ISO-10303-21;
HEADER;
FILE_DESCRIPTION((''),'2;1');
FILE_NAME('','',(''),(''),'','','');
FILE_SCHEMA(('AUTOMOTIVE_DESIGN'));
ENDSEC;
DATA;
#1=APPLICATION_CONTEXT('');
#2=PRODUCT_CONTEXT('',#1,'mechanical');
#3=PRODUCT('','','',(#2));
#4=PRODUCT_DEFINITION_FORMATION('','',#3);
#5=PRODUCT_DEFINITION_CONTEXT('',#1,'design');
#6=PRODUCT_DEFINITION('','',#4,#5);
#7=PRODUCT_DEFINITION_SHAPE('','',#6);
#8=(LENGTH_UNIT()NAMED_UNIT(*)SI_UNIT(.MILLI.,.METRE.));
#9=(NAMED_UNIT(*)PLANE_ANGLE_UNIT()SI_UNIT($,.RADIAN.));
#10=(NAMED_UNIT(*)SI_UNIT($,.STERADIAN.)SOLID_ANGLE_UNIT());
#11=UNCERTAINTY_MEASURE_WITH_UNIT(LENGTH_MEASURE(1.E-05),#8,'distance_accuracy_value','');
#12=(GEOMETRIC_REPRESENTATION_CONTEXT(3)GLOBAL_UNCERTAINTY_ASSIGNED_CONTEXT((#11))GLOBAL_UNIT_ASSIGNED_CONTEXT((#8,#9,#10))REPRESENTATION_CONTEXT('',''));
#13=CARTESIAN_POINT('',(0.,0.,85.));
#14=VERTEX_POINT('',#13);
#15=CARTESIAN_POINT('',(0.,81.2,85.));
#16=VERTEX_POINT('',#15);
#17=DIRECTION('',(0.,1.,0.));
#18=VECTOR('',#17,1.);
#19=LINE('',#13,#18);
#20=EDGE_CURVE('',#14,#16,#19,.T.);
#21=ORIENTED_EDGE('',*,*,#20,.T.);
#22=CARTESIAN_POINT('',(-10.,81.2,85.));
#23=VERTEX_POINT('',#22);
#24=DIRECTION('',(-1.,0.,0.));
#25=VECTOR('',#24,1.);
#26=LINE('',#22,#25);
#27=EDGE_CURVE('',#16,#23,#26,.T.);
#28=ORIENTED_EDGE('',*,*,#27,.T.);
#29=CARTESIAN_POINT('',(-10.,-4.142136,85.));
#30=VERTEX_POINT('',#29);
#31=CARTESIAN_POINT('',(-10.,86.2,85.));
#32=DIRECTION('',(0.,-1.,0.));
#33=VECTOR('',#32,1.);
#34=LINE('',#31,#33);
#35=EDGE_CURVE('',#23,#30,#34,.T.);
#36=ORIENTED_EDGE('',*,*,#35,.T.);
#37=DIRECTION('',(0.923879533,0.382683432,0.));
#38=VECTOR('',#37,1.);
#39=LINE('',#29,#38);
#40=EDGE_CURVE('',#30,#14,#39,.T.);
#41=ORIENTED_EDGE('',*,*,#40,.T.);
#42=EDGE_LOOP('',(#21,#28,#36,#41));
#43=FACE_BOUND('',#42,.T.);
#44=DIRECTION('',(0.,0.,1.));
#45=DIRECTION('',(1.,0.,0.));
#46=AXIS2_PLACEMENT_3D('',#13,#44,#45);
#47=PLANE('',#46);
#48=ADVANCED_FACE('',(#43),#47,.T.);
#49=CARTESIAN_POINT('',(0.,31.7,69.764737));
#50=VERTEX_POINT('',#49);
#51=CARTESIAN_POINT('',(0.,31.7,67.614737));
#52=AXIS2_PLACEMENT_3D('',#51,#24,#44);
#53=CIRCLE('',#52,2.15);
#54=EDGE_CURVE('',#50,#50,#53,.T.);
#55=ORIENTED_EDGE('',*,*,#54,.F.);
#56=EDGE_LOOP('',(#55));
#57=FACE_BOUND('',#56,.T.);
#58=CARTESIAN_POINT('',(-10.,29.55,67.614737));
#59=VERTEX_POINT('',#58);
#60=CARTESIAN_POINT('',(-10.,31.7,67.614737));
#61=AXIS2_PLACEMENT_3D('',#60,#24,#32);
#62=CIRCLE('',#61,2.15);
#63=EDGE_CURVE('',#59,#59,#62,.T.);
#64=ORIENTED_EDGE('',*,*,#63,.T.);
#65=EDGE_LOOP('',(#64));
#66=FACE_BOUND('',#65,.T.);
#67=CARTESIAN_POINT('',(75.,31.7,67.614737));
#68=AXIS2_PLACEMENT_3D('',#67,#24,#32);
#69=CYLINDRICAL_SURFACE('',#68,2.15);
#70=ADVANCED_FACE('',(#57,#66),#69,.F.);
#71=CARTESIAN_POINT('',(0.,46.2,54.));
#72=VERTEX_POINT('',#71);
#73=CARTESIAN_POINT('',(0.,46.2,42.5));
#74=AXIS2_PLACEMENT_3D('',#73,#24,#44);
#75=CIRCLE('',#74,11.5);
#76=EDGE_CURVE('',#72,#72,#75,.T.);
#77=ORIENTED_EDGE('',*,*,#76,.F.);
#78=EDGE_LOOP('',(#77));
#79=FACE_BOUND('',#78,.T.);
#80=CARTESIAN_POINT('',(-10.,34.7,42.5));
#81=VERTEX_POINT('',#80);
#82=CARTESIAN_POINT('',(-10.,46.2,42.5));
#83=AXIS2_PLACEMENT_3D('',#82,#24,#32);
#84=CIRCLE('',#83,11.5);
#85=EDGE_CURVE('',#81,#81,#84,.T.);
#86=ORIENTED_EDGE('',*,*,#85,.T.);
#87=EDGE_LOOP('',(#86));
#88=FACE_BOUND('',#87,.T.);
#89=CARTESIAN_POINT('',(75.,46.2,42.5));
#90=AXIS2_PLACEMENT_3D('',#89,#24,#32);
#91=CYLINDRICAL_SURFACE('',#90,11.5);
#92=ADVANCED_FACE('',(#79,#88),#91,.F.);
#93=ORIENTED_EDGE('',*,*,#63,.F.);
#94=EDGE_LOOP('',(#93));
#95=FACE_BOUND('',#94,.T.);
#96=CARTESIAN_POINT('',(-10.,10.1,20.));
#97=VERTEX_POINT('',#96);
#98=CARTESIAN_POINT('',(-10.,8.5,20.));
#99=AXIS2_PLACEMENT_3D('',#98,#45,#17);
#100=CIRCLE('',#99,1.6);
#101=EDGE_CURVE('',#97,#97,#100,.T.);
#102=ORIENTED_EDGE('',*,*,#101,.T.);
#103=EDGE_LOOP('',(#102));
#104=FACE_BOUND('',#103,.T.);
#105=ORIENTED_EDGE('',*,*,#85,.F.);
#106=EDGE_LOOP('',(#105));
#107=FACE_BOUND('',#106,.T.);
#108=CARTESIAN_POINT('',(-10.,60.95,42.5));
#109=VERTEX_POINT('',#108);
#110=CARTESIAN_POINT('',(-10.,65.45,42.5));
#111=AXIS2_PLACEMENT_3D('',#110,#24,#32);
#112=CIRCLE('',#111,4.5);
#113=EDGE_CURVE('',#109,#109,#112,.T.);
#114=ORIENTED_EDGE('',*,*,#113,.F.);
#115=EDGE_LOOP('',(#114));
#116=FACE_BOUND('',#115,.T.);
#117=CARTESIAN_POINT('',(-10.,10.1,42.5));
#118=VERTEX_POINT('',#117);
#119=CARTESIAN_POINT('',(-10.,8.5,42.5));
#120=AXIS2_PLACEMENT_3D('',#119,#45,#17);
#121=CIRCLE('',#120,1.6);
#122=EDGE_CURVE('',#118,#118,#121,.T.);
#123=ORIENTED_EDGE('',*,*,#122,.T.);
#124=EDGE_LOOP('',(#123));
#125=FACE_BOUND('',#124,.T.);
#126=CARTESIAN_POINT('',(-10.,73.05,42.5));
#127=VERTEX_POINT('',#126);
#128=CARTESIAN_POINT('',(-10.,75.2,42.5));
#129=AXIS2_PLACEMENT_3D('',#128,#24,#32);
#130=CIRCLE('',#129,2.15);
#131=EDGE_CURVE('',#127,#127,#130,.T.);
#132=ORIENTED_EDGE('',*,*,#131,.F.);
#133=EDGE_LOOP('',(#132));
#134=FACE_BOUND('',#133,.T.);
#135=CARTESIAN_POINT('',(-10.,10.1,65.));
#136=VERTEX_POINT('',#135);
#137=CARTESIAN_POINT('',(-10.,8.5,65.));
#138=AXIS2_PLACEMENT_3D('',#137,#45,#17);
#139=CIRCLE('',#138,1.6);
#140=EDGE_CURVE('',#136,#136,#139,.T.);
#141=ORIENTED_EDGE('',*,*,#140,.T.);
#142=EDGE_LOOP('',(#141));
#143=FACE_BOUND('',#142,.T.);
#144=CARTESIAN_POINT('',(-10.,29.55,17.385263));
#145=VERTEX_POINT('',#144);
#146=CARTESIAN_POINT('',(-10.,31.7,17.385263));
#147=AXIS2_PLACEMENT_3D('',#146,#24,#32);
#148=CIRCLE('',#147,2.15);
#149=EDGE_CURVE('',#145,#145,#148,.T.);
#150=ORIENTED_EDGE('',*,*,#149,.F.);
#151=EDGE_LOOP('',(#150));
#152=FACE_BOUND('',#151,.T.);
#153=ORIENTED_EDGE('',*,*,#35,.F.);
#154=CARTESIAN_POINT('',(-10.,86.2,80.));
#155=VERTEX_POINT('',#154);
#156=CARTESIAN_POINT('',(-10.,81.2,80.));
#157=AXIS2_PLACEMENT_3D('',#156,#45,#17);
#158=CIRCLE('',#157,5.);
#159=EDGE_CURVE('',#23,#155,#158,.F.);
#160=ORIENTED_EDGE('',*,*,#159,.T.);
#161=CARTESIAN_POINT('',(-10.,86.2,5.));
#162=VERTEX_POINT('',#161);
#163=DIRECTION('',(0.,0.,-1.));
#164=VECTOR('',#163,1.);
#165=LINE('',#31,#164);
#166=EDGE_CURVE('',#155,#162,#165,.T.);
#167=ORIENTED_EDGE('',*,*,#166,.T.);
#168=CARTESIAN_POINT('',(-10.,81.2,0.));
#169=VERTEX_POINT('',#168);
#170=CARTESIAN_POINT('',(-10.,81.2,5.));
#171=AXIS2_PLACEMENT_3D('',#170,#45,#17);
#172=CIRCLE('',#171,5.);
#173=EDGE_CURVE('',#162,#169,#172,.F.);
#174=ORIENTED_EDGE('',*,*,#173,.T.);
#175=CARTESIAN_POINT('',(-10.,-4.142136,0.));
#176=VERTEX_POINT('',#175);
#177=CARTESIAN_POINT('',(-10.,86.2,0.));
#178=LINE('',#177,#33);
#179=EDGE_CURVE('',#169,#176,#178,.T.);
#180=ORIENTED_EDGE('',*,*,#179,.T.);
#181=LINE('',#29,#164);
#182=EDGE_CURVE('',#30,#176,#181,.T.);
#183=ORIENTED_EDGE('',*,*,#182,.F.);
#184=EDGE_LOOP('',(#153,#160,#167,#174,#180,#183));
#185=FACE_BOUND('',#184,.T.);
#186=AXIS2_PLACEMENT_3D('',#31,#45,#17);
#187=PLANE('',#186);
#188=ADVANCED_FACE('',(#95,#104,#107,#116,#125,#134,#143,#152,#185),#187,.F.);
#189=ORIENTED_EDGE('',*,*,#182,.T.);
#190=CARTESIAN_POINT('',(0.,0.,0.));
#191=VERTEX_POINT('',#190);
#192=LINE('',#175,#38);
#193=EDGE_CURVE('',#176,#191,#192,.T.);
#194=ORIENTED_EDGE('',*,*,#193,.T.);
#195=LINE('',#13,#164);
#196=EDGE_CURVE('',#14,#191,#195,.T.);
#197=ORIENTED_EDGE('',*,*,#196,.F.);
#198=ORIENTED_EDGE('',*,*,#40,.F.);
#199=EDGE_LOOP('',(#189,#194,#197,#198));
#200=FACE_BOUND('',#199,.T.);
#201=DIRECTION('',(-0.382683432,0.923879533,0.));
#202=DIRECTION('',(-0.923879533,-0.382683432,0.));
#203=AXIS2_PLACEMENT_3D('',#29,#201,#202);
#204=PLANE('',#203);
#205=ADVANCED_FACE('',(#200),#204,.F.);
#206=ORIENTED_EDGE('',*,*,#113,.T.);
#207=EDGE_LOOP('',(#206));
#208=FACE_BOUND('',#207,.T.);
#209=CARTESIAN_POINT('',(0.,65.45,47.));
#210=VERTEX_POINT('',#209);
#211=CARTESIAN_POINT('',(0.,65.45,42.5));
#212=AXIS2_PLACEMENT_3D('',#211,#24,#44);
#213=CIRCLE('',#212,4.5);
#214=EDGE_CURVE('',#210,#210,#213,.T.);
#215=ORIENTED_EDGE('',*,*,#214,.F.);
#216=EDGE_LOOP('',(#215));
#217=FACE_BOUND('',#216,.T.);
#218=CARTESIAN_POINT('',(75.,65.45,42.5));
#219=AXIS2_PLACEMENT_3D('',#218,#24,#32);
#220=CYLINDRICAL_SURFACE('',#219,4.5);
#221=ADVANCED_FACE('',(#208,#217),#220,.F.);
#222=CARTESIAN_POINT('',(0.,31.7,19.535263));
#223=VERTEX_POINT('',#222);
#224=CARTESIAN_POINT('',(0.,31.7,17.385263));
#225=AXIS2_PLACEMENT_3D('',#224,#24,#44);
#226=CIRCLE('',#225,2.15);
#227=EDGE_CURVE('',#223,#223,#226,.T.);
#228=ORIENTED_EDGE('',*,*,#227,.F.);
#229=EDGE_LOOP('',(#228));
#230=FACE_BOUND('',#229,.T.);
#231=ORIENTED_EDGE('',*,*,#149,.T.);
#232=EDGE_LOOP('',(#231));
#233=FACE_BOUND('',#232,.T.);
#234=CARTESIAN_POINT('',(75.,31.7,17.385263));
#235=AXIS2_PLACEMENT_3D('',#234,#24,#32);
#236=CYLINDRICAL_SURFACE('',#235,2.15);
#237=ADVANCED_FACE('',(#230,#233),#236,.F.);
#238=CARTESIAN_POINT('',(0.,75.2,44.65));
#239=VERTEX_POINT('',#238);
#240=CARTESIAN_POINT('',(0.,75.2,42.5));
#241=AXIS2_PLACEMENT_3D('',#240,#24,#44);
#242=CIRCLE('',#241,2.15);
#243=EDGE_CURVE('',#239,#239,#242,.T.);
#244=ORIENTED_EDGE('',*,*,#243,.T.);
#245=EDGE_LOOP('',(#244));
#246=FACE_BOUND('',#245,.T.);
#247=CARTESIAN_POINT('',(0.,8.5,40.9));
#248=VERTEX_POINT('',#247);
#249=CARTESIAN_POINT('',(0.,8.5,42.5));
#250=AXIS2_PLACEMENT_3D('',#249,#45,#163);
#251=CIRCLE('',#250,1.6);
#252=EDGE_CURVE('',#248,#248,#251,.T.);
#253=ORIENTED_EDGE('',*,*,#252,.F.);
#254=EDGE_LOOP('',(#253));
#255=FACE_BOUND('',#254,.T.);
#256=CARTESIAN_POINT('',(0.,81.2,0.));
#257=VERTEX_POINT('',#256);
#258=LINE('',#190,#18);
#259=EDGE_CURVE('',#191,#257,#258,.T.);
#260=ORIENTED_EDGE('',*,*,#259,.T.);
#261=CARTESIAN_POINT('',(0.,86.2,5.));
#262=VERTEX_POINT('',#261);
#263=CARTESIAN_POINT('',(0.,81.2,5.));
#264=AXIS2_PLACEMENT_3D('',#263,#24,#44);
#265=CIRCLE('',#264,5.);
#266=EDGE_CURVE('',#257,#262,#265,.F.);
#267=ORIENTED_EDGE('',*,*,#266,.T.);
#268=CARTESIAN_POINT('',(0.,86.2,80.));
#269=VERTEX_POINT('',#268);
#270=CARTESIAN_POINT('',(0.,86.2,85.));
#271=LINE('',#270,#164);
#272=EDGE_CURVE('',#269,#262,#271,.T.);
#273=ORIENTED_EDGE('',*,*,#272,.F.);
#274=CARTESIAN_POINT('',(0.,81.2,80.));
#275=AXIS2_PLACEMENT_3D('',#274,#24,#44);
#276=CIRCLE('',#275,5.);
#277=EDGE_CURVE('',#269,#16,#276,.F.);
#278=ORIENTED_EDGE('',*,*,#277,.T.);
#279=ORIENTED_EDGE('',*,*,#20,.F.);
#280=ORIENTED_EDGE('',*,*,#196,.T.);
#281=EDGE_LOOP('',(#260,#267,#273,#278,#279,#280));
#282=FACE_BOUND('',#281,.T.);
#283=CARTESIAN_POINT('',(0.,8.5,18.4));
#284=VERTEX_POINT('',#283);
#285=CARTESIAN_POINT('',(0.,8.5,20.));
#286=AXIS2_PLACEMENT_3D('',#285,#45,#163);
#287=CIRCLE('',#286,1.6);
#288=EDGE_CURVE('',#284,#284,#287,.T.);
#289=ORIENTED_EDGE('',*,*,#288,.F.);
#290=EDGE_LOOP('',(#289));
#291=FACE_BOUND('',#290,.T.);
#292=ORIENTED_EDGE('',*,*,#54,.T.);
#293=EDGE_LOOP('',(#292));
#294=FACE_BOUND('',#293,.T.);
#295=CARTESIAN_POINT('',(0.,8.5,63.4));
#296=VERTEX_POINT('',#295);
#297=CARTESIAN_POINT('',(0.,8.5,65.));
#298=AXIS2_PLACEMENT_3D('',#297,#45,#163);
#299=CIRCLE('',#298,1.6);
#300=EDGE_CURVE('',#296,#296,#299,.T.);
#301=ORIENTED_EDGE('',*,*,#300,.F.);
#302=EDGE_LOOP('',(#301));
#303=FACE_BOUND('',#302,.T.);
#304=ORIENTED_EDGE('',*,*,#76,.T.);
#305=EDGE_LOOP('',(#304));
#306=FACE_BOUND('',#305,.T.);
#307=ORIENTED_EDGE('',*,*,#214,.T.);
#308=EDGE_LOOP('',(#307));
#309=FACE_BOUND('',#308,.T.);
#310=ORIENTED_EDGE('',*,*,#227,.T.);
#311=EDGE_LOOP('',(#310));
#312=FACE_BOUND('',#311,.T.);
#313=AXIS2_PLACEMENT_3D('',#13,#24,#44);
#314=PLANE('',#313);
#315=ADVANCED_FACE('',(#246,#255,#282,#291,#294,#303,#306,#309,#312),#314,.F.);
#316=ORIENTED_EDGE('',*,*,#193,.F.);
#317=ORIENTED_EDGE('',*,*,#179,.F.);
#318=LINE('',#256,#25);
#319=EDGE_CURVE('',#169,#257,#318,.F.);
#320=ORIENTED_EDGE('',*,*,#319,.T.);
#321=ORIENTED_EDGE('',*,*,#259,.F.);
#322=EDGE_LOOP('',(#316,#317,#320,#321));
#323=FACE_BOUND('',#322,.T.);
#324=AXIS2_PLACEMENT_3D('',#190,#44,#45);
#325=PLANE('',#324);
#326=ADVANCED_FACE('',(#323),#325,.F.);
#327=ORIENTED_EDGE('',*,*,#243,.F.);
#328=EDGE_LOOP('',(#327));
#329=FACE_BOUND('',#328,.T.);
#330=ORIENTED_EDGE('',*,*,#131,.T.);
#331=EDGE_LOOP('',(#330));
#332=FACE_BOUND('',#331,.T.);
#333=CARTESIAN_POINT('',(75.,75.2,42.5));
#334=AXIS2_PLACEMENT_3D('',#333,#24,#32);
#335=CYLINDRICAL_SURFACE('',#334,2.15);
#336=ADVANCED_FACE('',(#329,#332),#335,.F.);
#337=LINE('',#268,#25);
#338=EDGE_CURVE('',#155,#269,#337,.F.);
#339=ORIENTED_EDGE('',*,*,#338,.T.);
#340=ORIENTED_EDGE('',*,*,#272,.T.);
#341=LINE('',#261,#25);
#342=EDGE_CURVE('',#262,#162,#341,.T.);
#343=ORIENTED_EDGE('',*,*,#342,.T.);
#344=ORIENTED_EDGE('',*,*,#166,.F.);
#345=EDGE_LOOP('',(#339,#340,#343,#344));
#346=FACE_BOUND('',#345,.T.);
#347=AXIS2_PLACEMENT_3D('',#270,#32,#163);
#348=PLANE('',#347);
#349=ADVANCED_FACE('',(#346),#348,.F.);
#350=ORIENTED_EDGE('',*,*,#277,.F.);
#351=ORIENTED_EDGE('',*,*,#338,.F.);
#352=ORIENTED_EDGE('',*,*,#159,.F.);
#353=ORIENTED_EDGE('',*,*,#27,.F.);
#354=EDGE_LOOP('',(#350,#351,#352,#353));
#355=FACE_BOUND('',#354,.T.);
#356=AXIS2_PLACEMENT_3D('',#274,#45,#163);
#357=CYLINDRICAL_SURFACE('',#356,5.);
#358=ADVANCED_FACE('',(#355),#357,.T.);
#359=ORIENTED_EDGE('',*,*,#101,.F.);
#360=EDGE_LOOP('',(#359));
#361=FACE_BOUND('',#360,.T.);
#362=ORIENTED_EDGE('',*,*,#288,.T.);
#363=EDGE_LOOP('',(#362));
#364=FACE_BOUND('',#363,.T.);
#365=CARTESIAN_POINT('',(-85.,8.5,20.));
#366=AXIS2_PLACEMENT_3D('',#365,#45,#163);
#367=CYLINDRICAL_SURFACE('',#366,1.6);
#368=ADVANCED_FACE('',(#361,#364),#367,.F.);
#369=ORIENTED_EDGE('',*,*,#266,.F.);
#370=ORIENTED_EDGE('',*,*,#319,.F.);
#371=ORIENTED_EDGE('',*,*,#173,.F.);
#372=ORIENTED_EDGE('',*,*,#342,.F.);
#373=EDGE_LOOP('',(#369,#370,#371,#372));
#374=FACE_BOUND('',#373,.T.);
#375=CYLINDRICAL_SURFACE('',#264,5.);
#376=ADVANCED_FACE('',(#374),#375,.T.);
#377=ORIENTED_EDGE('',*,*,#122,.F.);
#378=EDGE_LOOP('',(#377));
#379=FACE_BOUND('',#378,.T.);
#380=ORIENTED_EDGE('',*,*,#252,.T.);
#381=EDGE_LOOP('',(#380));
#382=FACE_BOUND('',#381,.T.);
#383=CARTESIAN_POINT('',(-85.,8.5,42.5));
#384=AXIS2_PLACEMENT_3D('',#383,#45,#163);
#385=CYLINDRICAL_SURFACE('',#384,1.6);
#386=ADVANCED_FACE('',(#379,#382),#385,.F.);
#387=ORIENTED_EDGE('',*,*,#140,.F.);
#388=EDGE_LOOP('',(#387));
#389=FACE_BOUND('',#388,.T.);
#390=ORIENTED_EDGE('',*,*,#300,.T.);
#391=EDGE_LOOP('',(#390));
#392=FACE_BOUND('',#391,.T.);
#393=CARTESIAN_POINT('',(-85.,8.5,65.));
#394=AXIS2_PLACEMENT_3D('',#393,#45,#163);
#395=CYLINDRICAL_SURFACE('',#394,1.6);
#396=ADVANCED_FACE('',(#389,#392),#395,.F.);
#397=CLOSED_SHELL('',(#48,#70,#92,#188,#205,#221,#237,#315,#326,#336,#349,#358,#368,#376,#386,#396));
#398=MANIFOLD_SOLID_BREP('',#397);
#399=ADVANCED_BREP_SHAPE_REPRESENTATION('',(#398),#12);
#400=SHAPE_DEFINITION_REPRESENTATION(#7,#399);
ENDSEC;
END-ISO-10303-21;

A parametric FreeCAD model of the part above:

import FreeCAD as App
import Part
import Sketcher
from FreeCAD import Vector
Q = App.Units.Quantity


def edges_at(feature, points):
    """Names of the edges that pass closest to the given points."""
    edges = feature.Shape.Edges
    near = lambda p: min(range(len(edges)), key=lambda i: edges[i].distToShape(Part.Vertex(*p))[0])
    return sorted({f"Edge{near(p) + 1}" for p in points})

doc = App.newDocument("Part")
params = doc.addObject("Spreadsheet::Sheet", "Params")
for row, (alias, value) in enumerate([
    ("sketch1_width", "10 mm"),
    ("sketch1_height", "86.2 mm"),
    ("pad1_length", "85 mm"),
    ("sketch2_diameter", "23 mm"),
    ("sketch2_diameter2", "9 mm"),
    ("sketch2_diameter3", "4.3 mm"),
    ("pocket1_length", "85 mm"),
    ("sketch3_diameter", "3.2 mm"),
    ("pocket2_length", "85 mm"),
    ("fillet_radius", "5 mm"),
], start=1):
    params.set(f"A{row}", alias)
    params.set(f"B{row}", "=" + value)
    params.setAlias(f"B{row}", alias)

body = doc.addObject("PartDesign::Body", "Body")

# Sketch on XY plane
sketch1 = body.newObject("Sketcher::SketchObject", "Sketch")
sketch1.AttachmentSupport = (doc.getObject("XY_Plane"), [""])
sketch1.MapMode = "FlatFace"
sketch1.addGeometry([
    Part.LineSegment(Vector(0, 0, 0), Vector(0, 86, 0)),
    Part.LineSegment(Vector(0, 86, 0), Vector(-10, 86, 0)),
    Part.LineSegment(Vector(-10, 86, 0), Vector(-10, -4, 0)),
    Part.LineSegment(Vector(-10, -4, 0), Vector(0, 0, 0)),
], False)
sketch1.addConstraint([
    Sketcher.Constraint("Coincident", 0, 2, 1, 1),
    Sketcher.Constraint("Coincident", 1, 2, 2, 1),
    Sketcher.Constraint("Coincident", 2, 2, 3, 1),
    Sketcher.Constraint("Coincident", 3, 2, 0, 1),
    Sketcher.Constraint("Vertical", 0),
    Sketcher.Constraint("Horizontal", 1),
    Sketcher.Constraint("Vertical", 2),
    Sketcher.Constraint("Coincident", 3, 2, -1, 1),
    Sketcher.Constraint("DistanceX", 1, 2, 1, 1, Q("10 mm")),
    Sketcher.Constraint("DistanceY", 0, 1, 0, 2, Q("86.2 mm")),
    Sketcher.Constraint("Angle", 3, Q("22.5 deg")),
])
sketch1.setExpression("Constraints[8]", "Params.sketch1_width")
sketch1.setExpression("Constraints[9]", "Params.sketch1_height")
pad1 = body.newObject("PartDesign::Pad", "Pad")
pad1.Profile = sketch1
pad1.setExpression("Length", "Params.pad1_length")

# Sketch on YZ plane
sketch2 = body.newObject("Sketcher::SketchObject", "Sketch001")
sketch2.AttachmentSupport = (doc.getObject("YZ_Plane"), [""])
sketch2.MapMode = "FlatFace"
sketch2.AttachmentOffset = App.Placement(Vector(0, 0, -10), App.Rotation())
sketch2.addGeometry([
    Part.Circle(Vector(46.2, 42.5, 0), Vector(0, 0, 1), 11.5),  # 0
    Part.Circle(Vector(65.5, 42.5, 0), Vector(0, 0, 1), 4.5),  # 1
    Part.Circle(Vector(75.2, 42.5, 0), Vector(0, 0, 1), 2.1),  # 2
    Part.Circle(Vector(31.7, 67.6, 0), Vector(0, 0, 1), 2.1),  # 3
    Part.Circle(Vector(31.7, 17.4, 0), Vector(0, 0, 1), 2.1),  # 4
], False)
sketch2.addConstraint([
    Sketcher.Constraint("Equal", 2, 3),
    Sketcher.Constraint("Equal", 3, 4),
    Sketcher.Constraint("Horizontal", 0, 3, 1, 3),
    Sketcher.Constraint("Horizontal", 1, 3, 2, 3),
    Sketcher.Constraint("Vertical", 3, 3, 4, 3),
    Sketcher.Constraint("Diameter", 0, Q("23 mm")),
    Sketcher.Constraint("Diameter", 1, Q("9 mm")),
    Sketcher.Constraint("Diameter", 2, Q("4.3 mm")),
    Sketcher.Constraint("DistanceX", 0, 3, 2, 3, Q("29 mm")),
    Sketcher.Constraint("DistanceX", -1, 1, 0, 3, Q("46.2 mm")),
    Sketcher.Constraint("DistanceY", -1, 1, 0, 3, Q("42.5 mm")),
    Sketcher.Constraint("DistanceX", -1, 1, 3, 3, Q("31.7 mm")),
    Sketcher.Constraint("DistanceX", -1, 1, 1, 3, Q("65.45 mm")),
    Sketcher.Constraint("DistanceY", -1, 1, 3, 3, Q("67.614737 mm")),
    Sketcher.Constraint("DistanceY", -1, 1, 4, 3, Q("17.385263 mm")),
])
sketch2.setExpression("Constraints[5]", "Params.sketch2_diameter")
sketch2.setExpression("Constraints[6]", "Params.sketch2_diameter2")
sketch2.setExpression("Constraints[7]", "Params.sketch2_diameter3")
pocket1 = body.newObject("PartDesign::Pocket", "Pocket")
pocket1.Profile = sketch2
pocket1.setExpression("Length", "Params.pocket1_length")
pocket1.Reversed = True

# Sketch on YZ plane
sketch3 = body.newObject("Sketcher::SketchObject", "Sketch002")
sketch3.AttachmentSupport = (doc.getObject("YZ_Plane"), [""])
sketch3.MapMode = "FlatFace"
sketch3.addGeometry([
    Part.Circle(Vector(8.5, 65, 0), Vector(0, 0, 1), 1.6),
    Part.Circle(Vector(8.5, 20, 0), Vector(0, 0, 1), 1.6),
    Part.Circle(Vector(8.5, 42.5, 0), Vector(0, 0, 1), 1.6),
], False)
sketch3.addConstraint([
    Sketcher.Constraint("Equal", 0, 1),
    Sketcher.Constraint("Equal", 1, 2),
    Sketcher.Constraint("Vertical", 0, 3, 1, 3),
    Sketcher.Constraint("Vertical", 1, 3, 2, 3),
    Sketcher.Constraint("Diameter", 0, Q("3.2 mm")),
    Sketcher.Constraint("DistanceY", -1, 1, 0, 3, Q("65 mm")),
    Sketcher.Constraint("DistanceY", -1, 1, 1, 3, Q("20 mm")),
    Sketcher.Constraint("DistanceX", -1, 1, 0, 3, Q("8.5 mm")),
    Sketcher.Constraint("DistanceY", -1, 1, 2, 3, Q("42.5 mm")),
])
sketch3.setExpression("Constraints[4]", "Params.sketch3_diameter")
pocket2 = body.newObject("PartDesign::Pocket", "Pocket001")
pocket2.Profile = sketch3
pocket2.setExpression("Length", "Params.pocket2_length")
doc.recompute()

fillet = body.newObject("PartDesign::Fillet", "Fillet")
fillet.Base = (pocket2, edges_at(pocket2, [(-5, 86.2, 85), (-5, 86.2, 0)]))
fillet.setExpression("Radius", "Params.fillet_radius")

doc.recompute()
